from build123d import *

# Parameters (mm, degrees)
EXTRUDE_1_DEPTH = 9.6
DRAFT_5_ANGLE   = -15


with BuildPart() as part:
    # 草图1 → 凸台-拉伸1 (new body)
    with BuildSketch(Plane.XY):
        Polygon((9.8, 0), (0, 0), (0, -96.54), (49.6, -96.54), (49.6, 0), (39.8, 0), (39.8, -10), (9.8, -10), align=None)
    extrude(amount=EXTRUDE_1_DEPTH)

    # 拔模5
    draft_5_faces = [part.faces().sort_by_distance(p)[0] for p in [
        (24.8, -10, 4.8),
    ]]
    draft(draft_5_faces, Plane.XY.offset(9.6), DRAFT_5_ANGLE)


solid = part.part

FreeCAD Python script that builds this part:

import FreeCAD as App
import Part
import Sketcher
Q = App.Units.Quantity


def faces_at(feature, points):
    """Names of the faces that lie closest to the given points."""
    faces = feature.Shape.Faces
    near = lambda p: min(range(len(faces)), key=lambda i: faces[i].distToShape(Part.Vertex(*p))[0])
    return sorted({f"Face{near(p) + 1}" for p in points})

doc = App.newDocument("Part")
body = doc.addObject("PartDesign::Body", "Body")

sketch1 = body.newObject("Sketcher::SketchObject", "Sketch")
sketch1.AttachmentSupport = (doc.getObject("XY_Plane"), [""])
sketch1.MapMode = "FlatFace"
sketch1.addGeometry([
    Part.LineSegment(App.Vector(10, 0, 0), App.Vector(0, 0, 0)),
    Part.LineSegment(App.Vector(0, 0, 0), App.Vector(0, -97, 0)),
    Part.LineSegment(App.Vector(0, -97, 0), App.Vector(50, -97, 0)),
    Part.LineSegment(App.Vector(50, -97, 0), App.Vector(50, 0, 0)),
    Part.LineSegment(App.Vector(50, 0, 0), App.Vector(40, 0, 0)),
    Part.LineSegment(App.Vector(40, 0, 0), App.Vector(40, -10, 0)),
    Part.LineSegment(App.Vector(40, -10, 0), App.Vector(10, -10, 0)),
    Part.LineSegment(App.Vector(10, -10, 0), App.Vector(10, 0, 0)),
], False)
sketch1.addConstraint([
    Sketcher.Constraint("Coincident", 0, 2, 1, 1),
    Sketcher.Constraint("Coincident", 1, 2, 2, 1),
    Sketcher.Constraint("Coincident", 2, 2, 3, 1),
    Sketcher.Constraint("Coincident", 3, 2, 4, 1),
    Sketcher.Constraint("Coincident", 4, 2, 5, 1),
    Sketcher.Constraint("Coincident", 5, 2, 6, 1),
    Sketcher.Constraint("Coincident", 6, 2, 7, 1),
    Sketcher.Constraint("Coincident", 7, 2, 0, 1),
    Sketcher.Constraint("Horizontal", 0),
    Sketcher.Constraint("Vertical", 1),
    Sketcher.Constraint("Horizontal", 2),
    Sketcher.Constraint("Vertical", 3),
    Sketcher.Constraint("Horizontal", 4),
    Sketcher.Constraint("Vertical", 5),
    Sketcher.Constraint("Horizontal", 6),
    Sketcher.Constraint("Vertical", 7),
    Sketcher.Constraint("Coincident", 0, 2, -1, 1),
    Sketcher.Constraint("PointOnObject", 3, 2, -1),
    Sketcher.Constraint("Equal", 0, 4),
    Sketcher.Constraint("DistanceX", 6, 2, 6, 1, Q("30 mm")),
    Sketcher.Constraint("DistanceY", 5, 2, 5, 1, Q("10 mm")),
    Sketcher.Constraint("DistanceX", 0, 2, 0, 1, Q("9.8 mm")),
    Sketcher.Constraint("DistanceY", 1, 2, 1, 1, Q("96.54 mm")),
])
pad1 = body.newObject("PartDesign::Pad", "Pad")
pad1.Profile = sketch1
pad1.Length = 9.6
doc.recompute()

datumplane = body.newObject("PartDesign::Plane", "DatumPlane")
datumplane.AttachmentSupport = (doc.getObject("XY_Plane"), [""])
datumplane.MapMode = "FlatFace"
datumplane.AttachmentOffset = App.Placement(App.Vector(0, 0, 9.6), App.Rotation())
draft = body.newObject("PartDesign::Draft", "Draft")
draft.Base = (pad1, faces_at(pad1, [(24.8, -10, 4.8)]))
draft.NeutralPlane = (datumplane, [""])
draft.Angle = 15
draft.Reversed = True

doc.recompute()
